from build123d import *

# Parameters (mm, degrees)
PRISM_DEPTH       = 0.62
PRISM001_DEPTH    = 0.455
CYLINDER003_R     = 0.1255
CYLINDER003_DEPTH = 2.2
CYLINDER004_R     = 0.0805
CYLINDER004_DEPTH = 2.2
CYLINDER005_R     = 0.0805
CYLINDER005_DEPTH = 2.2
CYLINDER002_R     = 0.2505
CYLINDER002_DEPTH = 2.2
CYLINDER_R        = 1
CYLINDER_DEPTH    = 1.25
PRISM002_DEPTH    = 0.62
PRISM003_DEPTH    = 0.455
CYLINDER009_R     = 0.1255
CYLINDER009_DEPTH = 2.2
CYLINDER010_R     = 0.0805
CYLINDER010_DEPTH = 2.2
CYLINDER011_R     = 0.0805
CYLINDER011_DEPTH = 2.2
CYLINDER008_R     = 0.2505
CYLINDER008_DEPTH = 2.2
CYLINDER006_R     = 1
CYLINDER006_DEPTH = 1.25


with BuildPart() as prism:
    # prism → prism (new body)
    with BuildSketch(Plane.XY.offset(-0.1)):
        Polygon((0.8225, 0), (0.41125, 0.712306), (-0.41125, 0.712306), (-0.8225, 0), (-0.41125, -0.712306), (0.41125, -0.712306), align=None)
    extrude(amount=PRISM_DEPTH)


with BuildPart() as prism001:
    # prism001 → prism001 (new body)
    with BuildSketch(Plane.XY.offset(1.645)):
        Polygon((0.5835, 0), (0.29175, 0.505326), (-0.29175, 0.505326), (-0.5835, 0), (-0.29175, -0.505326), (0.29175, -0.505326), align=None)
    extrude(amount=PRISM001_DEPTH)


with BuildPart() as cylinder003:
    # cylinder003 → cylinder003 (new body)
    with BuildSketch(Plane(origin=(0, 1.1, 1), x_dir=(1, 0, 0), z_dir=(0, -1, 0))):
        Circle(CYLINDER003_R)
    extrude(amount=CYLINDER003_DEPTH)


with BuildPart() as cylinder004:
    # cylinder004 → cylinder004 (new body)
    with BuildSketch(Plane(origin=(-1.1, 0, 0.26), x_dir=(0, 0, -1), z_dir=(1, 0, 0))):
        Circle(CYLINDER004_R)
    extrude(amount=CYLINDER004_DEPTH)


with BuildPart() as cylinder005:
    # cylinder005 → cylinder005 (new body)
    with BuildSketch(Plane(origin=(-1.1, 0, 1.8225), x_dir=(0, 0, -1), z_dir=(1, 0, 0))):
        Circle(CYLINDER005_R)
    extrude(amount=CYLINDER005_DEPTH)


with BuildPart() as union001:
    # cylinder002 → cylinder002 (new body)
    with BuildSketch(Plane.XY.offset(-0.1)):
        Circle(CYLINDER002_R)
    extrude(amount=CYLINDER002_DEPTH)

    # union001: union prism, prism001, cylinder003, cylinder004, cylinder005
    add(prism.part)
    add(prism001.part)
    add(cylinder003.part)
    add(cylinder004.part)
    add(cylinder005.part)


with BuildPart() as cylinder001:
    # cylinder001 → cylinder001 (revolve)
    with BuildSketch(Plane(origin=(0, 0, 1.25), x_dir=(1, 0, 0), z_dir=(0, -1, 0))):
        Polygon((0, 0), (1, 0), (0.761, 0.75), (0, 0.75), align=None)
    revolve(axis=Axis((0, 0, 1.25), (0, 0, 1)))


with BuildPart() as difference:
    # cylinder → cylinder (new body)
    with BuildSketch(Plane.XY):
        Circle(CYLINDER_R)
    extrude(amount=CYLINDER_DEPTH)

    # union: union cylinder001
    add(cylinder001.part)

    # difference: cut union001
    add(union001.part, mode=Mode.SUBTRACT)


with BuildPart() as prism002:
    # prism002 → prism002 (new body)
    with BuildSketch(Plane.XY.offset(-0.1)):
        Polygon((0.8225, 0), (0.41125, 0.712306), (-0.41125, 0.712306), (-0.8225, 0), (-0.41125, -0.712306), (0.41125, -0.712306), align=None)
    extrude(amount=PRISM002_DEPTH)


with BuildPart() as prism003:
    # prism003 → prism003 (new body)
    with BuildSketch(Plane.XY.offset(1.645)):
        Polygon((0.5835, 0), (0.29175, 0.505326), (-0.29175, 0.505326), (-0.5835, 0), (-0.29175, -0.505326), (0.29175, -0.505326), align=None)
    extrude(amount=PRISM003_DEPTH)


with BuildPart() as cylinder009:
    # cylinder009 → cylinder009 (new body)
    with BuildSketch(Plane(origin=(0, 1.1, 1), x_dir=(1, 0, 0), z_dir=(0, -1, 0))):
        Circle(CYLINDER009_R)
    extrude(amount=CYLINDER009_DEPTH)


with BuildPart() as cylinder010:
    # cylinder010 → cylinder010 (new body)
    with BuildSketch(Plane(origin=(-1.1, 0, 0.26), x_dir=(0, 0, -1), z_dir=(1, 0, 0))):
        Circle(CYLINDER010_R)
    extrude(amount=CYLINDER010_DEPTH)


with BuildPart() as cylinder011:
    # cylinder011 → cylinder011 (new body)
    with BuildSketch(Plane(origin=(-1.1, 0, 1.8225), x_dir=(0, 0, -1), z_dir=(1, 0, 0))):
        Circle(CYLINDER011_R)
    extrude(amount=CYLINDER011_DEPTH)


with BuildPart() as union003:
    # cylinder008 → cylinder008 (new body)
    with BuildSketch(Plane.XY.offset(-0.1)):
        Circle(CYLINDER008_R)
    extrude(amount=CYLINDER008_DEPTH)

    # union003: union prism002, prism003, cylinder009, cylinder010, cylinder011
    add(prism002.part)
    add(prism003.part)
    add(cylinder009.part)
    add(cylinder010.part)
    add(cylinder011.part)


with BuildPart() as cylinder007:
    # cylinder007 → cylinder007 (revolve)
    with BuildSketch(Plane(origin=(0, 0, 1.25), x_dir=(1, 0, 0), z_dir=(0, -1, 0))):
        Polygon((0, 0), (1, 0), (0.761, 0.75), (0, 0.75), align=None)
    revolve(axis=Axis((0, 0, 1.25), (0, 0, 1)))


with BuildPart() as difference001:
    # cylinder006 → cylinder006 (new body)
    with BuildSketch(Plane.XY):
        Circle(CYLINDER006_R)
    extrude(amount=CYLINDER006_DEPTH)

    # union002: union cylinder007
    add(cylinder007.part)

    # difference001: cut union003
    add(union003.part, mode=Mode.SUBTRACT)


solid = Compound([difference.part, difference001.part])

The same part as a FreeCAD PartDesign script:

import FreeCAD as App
import Part
import Sketcher

V = App.Vector
Q = App.Units.Quantity


def add_polygon(sketch, points):
    """Adds a closed chain of lines whose ends are joined by coincident constraints."""
    first, n = sketch.GeometryCount, len(points)
    for a, b in zip(points, points[1:] + points[:1]):
        sketch.addGeometry(Part.LineSegment(App.Vector(*a, 0), App.Vector(*b, 0)), False)
    for i in range(n):
        sketch.addConstraint(Sketcher.Constraint("Coincident", first + i, 2, first + (i + 1) % n, 1))

doc = App.newDocument("Part")
params = doc.addObject("Spreadsheet::Sheet", "Params")
for row, (alias, value) in enumerate([
    ("pad1_length", "0.62 mm"),
    ("pad2_length", "0.455 mm"),
    ("pad3_length", "2.2 mm"),
    ("pad4_length", "2.2 mm"),
    ("pad5_length", "2.2 mm"),
    ("pad6_length", "2.2 mm"),
    ("sketch7_width", "1 mm"),
    ("sketch7_height", "0.75 mm"),
    ("revolution_angle", "360 deg"),
    ("sketch8_diameter", "2 mm"),
    ("pad7_length", "1.25 mm"),
    ("pad8_length", "0.62 mm"),
    ("pad9_length", "0.455 mm"),
    ("pad10_length", "2.2 mm"),
    ("pad11_length", "2.2 mm"),
    ("pad12_length", "2.2 mm"),
    ("pad13_length", "2.2 mm"),
    ("sketch15_width", "1 mm"),
    ("sketch15_height", "0.75 mm"),
    ("revolution2_angle", "360 deg"),
    ("sketch16_diameter", "2 mm"),
    ("pad14_length", "1.25 mm"),
], start=1):
    params.set(f"A{row}", alias)
    params.set(f"B{row}", "=" + value)
    params.setAlias(f"B{row}", alias)

body = doc.addObject("PartDesign::Body", "Body")

sketch1 = body.newObject("Sketcher::SketchObject", "Sketch")
sketch1.AttachmentSupport = (doc.getObject("XY_Plane"), [""])
sketch1.MapMode = "FlatFace"
sketch1.AttachmentOffset = App.Placement(V(0, 0, -0.1), App.Rotation())
add_polygon(sketch1, [(0.8, 0), (0.4, 0.7), (-0.4, 0.7), (-0.8, 0), (-0.4, -0.7), (0.4, -0.7)])
sketch1.addConstraint([
    Sketcher.Constraint("Horizontal", 1),
    Sketcher.Constraint("Horizontal", 4),
    Sketcher.Constraint("Symmetric", 0, 2, 3, 2, -1, 1),
    Sketcher.Constraint("Symmetric", 2, 2, 5, 2, -1, 1),
    Sketcher.Constraint("PointOnObject", 2, 2, -1),
    Sketcher.Constraint("Parallel", 2, 5),
    Sketcher.Constraint("Vertical", 1, 2, 3, 2),
    Sketcher.Constraint("Angle", 0, Q("119.999996 deg")),
    Sketcher.Constraint("DistanceX", 1, 2, 1, 1, 0.8225),
    Sketcher.Constraint("DistanceX", 2, 2, 5, 2, 1.645),
])
pad1 = body.newObject("PartDesign::Pad", "Pad")
pad1.Profile = sketch1
pad1.setExpression("Length", "Params.pad1_length")
body2 = doc.addObject("PartDesign::Body", "Body001")

sketch2 = body2.newObject("Sketcher::SketchObject", "Sketch001")
sketch2.AttachmentSupport = (doc.getObject("XY_Plane001"), [""])
sketch2.MapMode = "FlatFace"
sketch2.AttachmentOffset = App.Placement(V(0, 0, 1.645), App.Rotation())
add_polygon(sketch2, [(0.6, 0), (0.3, 0.5), (-0.3, 0.5), (-0.6, 0), (-0.3, -0.5), (0.3, -0.5)])
sketch2.addConstraint([
    Sketcher.Constraint("Horizontal", 1),
    Sketcher.Constraint("Horizontal", 4),
    Sketcher.Constraint("Symmetric", 0, 2, 3, 2, -1, 1),
    Sketcher.Constraint("Symmetric", 2, 2, 5, 2, -1, 1),
    Sketcher.Constraint("PointOnObject", 2, 2, -1),
    Sketcher.Constraint("Parallel", 2, 5),
    Sketcher.Constraint("Vertical", 1, 2, 3, 2),
    Sketcher.Constraint("Angle", 0, Q("119.999991 deg")),
    Sketcher.Constraint("DistanceX", 1, 2, 1, 1, 0.5835),
    Sketcher.Constraint("DistanceX", 2, 2, 5, 2, 1.167),
])
pad2 = body2.newObject("PartDesign::Pad", "Pad001")
pad2.Profile = sketch2
pad2.setExpression("Length", "Params.pad2_length")
body3 = doc.addObject("PartDesign::Body", "Body002")

sketch3 = body3.newObject("Sketcher::SketchObject", "Sketch002")
sketch3.AttachmentSupport = (doc.getObject("XZ_Plane002"), [""])
sketch3.MapMode = "FlatFace"
sketch3.AttachmentOffset = App.Placement(V(0, 0, -1.1), App.Rotation())
sketch3.addGeometry(Part.Circle(V(0, 1, 0), V(0, 0, 1), 0.13), False)
sketch3.addConstraint([
    Sketcher.Constraint("PointOnObject", 0, 3, -2),
    Sketcher.Constraint("Diameter", 0, 0.251),
    Sketcher.Constraint("DistanceY", -1, 1, 0, 3, 1.0),
])
pad3 = body3.newObject("PartDesign::Pad", "Pad002")
pad3.Profile = sketch3
pad3.setExpression("Length", "Params.pad3_length")
body4 = doc.addObject("PartDesign::Body", "Body003")

sketch4 = body4.newObject("Sketcher::SketchObject", "Sketch003")
sketch4.AttachmentSupport = (doc.getObject("YZ_Plane003"), [""])
sketch4.MapMode = "FlatFace"
sketch4.AttachmentOffset = App.Placement(V(0, 0, -1.1), App.Rotation())
sketch4.addGeometry(Part.Circle(V(0, 0.26, 0), V(0, 0, 1), 0.08), False)
sketch4.addConstraint([
    Sketcher.Constraint("PointOnObject", 0, 3, -2),
    Sketcher.Constraint("Diameter", 0, 0.161),
    Sketcher.Constraint("DistanceY", -1, 1, 0, 3, 0.26),
])
pad4 = body4.newObject("PartDesign::Pad", "Pad003")
pad4.Profile = sketch4
pad4.setExpression("Length", "Params.pad4_length")
body5 = doc.addObject("PartDesign::Body", "Body004")

sketch5 = body5.newObject("Sketcher::SketchObject", "Sketch004")
sketch5.AttachmentSupport = (doc.getObject("YZ_Plane004"), [""])
sketch5.MapMode = "FlatFace"
sketch5.AttachmentOffset = App.Placement(V(0, 0, -1.1), App.Rotation())
sketch5.addGeometry(Part.Circle(V(0, 1.82, 0), V(0, 0, 1), 0.08), False)
sketch5.addConstraint([
    Sketcher.Constraint("PointOnObject", 0, 3, -2),
    Sketcher.Constraint("Diameter", 0, 0.161),
    Sketcher.Constraint("DistanceY", -1, 1, 0, 3, 1.8225),
])
pad5 = body5.newObject("PartDesign::Pad", "Pad004")
pad5.Profile = sketch5
pad5.setExpression("Length", "Params.pad5_length")
body6 = doc.addObject("PartDesign::Body", "Body005")

sketch6 = body6.newObject("Sketcher::SketchObject", "Sketch005")
sketch6.AttachmentSupport = (doc.getObject("XY_Plane005"), [""])
sketch6.MapMode = "FlatFace"
sketch6.AttachmentOffset = App.Placement(V(0, 0, -0.1), App.Rotation())
sketch6.addGeometry(Part.Circle(V(0, 0, 0), V(0, 0, 1), 0.25), False)
sketch6.addConstraint([
    Sketcher.Constraint("Coincident", 0, 3, -1, 1),
    Sketcher.Constraint("Diameter", 0, 0.501),
])
pad6 = body6.newObject("PartDesign::Pad", "Pad005")
pad6.Profile = sketch6
pad6.setExpression("Length", "Params.pad6_length")
doc.recompute()

boolean = body6.newObject("PartDesign::Boolean", "Boolean")
boolean.Type = "Fuse"
boolean.addObjects([body])
doc.recompute()

boolean2 = body6.newObject("PartDesign::Boolean", "Boolean001")
boolean2.Type = "Fuse"
boolean2.addObjects([body2])
doc.recompute()

boolean3 = body6.newObject("PartDesign::Boolean", "Boolean002")
boolean3.Type = "Fuse"
boolean3.addObjects([body3])
doc.recompute()

boolean4 = body6.newObject("PartDesign::Boolean", "Boolean003")
boolean4.Type = "Fuse"
boolean4.addObjects([body4])
doc.recompute()

boolean5 = body6.newObject("PartDesign::Boolean", "Boolean004")
boolean5.Type = "Fuse"
boolean5.addObjects([body5])
body7 = doc.addObject("PartDesign::Body", "Body006")

sketch7 = body7.newObject("Sketcher::SketchObject", "Sketch006")
sketch7.AttachmentSupport = (doc.getObject("XZ_Plane006"), [""])
sketch7.MapMode = "FlatFace"
add_polygon(sketch7, [(0, 1.2), (1, 1.2), (0.8, 2), (0, 2)])
sketch7.addConstraint([
    Sketcher.Constraint("Horizontal", 0),
    Sketcher.Constraint("Horizontal", 2),
    Sketcher.Constraint("Vertical", 3),
    Sketcher.Constraint("PointOnObject", 2, 2, -2),
    Sketcher.Constraint("DistanceX", 0, 1, 0, 2, 1.0),
    Sketcher.Constraint("DistanceY", -1, 1, 1, 2, 2.0),
    Sketcher.Constraint("DistanceY", 3, 2, 3, 1, 0.75),
    Sketcher.Constraint("DistanceX", 2, 2, 2, 1, 0.761),
])
sketch7.setExpression("Constraints[8]", "Params.sketch7_width")
sketch7.setExpression("Constraints[10]", "Params.sketch7_height")
revolution = body7.newObject("PartDesign::Revolution", "Revolution")
revolution.Profile = sketch7
revolution.ReferenceAxis = (sketch7, ["V_Axis"])
revolution.setExpression("Angle", "Params.revolution_angle")
body8 = doc.addObject("PartDesign::Body", "Body007")

sketch8 = body8.newObject("Sketcher::SketchObject", "Sketch007")
sketch8.AttachmentSupport = (doc.getObject("XY_Plane007"), [""])
sketch8.MapMode = "FlatFace"
sketch8.addGeometry(Part.Circle(V(0, 0, 0), V(0, 0, 1), 1), False)
sketch8.addConstraint([
    Sketcher.Constraint("Coincident", 0, 3, -1, 1),
    Sketcher.Constraint("Diameter", 0, 2.0),
])
sketch8.setExpression("Constraints[1]", "Params.sketch8_diameter")
pad7 = body8.newObject("PartDesign::Pad", "Pad006")
pad7.Profile = sketch8
pad7.setExpression("Length", "Params.pad7_length")
doc.recompute()

boolean6 = body8.newObject("PartDesign::Boolean", "Boolean005")
boolean6.Type = "Fuse"
boolean6.addObjects([body7])
doc.recompute()

boolean7 = body8.newObject("PartDesign::Boolean", "Boolean006")
boolean7.Type = "Cut"
boolean7.addObjects([body6])
body9 = doc.addObject("PartDesign::Body", "Body008")

sketch9 = body9.newObject("Sketcher::SketchObject", "Sketch008")
sketch9.AttachmentSupport = (doc.getObject("XY_Plane008"), [""])
sketch9.MapMode = "FlatFace"
sketch9.AttachmentOffset = App.Placement(V(0, 0, -0.1), App.Rotation())
add_polygon(sketch9, [(0.8, 0), (0.4, 0.7), (-0.4, 0.7), (-0.8, 0), (-0.4, -0.7), (0.4, -0.7)])
sketch9.addConstraint([
    Sketcher.Constraint("Horizontal", 1),
    Sketcher.Constraint("Horizontal", 4),
    Sketcher.Constraint("Symmetric", 0, 2, 3, 2, -1, 1),
    Sketcher.Constraint("Symmetric", 2, 2, 5, 2, -1, 1),
    Sketcher.Constraint("PointOnObject", 2, 2, -1),
    Sketcher.Constraint("Parallel", 2, 5),
    Sketcher.Constraint("Vertical", 1, 2, 3, 2),
    Sketcher.Constraint("Angle", 0, Q("119.999996 deg")),
    Sketcher.Constraint("DistanceX", 1, 2, 1, 1, 0.8225),
    Sketcher.Constraint("DistanceX", 2, 2, 5, 2, 1.645),
])
pad8 = body9.newObject("PartDesign::Pad", "Pad007")
pad8.Profile = sketch9
pad8.setExpression("Length", "Params.pad8_length")
body10 = doc.addObject("PartDesign::Body", "Body009")

sketch10 = body10.newObject("Sketcher::SketchObject", "Sketch009")
sketch10.AttachmentSupport = (doc.getObject("XY_Plane009"), [""])
sketch10.MapMode = "FlatFace"
sketch10.AttachmentOffset = App.Placement(V(0, 0, 1.645), App.Rotation())
add_polygon(sketch10, [(0.6, 0), (0.3, 0.5), (-0.3, 0.5), (-0.6, 0), (-0.3, -0.5), (0.3, -0.5)])
sketch10.addConstraint([
    Sketcher.Constraint("Horizontal", 1),
    Sketcher.Constraint("Horizontal", 4),
    Sketcher.Constraint("Symmetric", 0, 2, 3, 2, -1, 1),
    Sketcher.Constraint("Symmetric", 2, 2, 5, 2, -1, 1),
    Sketcher.Constraint("PointOnObject", 2, 2, -1),
    Sketcher.Constraint("Parallel", 2, 5),
    Sketcher.Constraint("Vertical", 1, 2, 3, 2),
    Sketcher.Constraint("Angle", 0, Q("119.999991 deg")),
    Sketcher.Constraint("DistanceX", 1, 2, 1, 1, 0.5835),
    Sketcher.Constraint("DistanceX", 2, 2, 5, 2, 1.167),
])
pad9 = body10.newObject("PartDesign::Pad", "Pad008")
pad9.Profile = sketch10
pad9.setExpression("Length", "Params.pad9_length")
body11 = doc.addObject("PartDesign::Body", "Body010")

sketch11 = body11.newObject("Sketcher::SketchObject", "Sketch010")
sketch11.AttachmentSupport = (doc.getObject("XZ_Plane010"), [""])
sketch11.MapMode = "FlatFace"
sketch11.AttachmentOffset = App.Placement(V(0, 0, -1.1), App.Rotation())
sketch11.addGeometry(Part.Circle(V(0, 1, 0), V(0, 0, 1), 0.13), False)
sketch11.addConstraint([
    Sketcher.Constraint("PointOnObject", 0, 3, -2),
    Sketcher.Constraint("Diameter", 0, 0.251),
    Sketcher.Constraint("DistanceY", -1, 1, 0, 3, 1.0),
])
pad10 = body11.newObject("PartDesign::Pad", "Pad009")
pad10.Profile = sketch11
pad10.setExpression("Length", "Params.pad10_length")
body12 = doc.addObject("PartDesign::Body", "Body011")

sketch12 = body12.newObject("Sketcher::SketchObject", "Sketch011")
sketch12.AttachmentSupport = (doc.getObject("YZ_Plane011"), [""])
sketch12.MapMode = "FlatFace"
sketch12.AttachmentOffset = App.Placement(V(0, 0, -1.1), App.Rotation())
sketch12.addGeometry(Part.Circle(V(0, 0.26, 0), V(0, 0, 1), 0.08), False)
sketch12.addConstraint([
    Sketcher.Constraint("PointOnObject", 0, 3, -2),
    Sketcher.Constraint("Diameter", 0, 0.161),
    Sketcher.Constraint("DistanceY", -1, 1, 0, 3, 0.26),
])
pad11 = body12.newObject("PartDesign::Pad", "Pad010")
pad11.Profile = sketch12
pad11.setExpression("Length", "Params.pad11_length")
body13 = doc.addObject("PartDesign::Body", "Body012")

sketch13 = body13.newObject("Sketcher::SketchObject", "Sketch012")
sketch13.AttachmentSupport = (doc.getObject("YZ_Plane012"), [""])
sketch13.MapMode = "FlatFace"
sketch13.AttachmentOffset = App.Placement(V(0, 0, -1.1), App.Rotation())
sketch13.addGeometry(Part.Circle(V(0, 1.82, 0), V(0, 0, 1), 0.08), False)
sketch13.addConstraint([
    Sketcher.Constraint("PointOnObject", 0, 3, -2),
    Sketcher.Constraint("Diameter", 0, 0.161),
    Sketcher.Constraint("DistanceY", -1, 1, 0, 3, 1.8225),
])
pad12 = body13.newObject("PartDesign::Pad", "Pad011")
pad12.Profile = sketch13
pad12.setExpression("Length", "Params.pad12_length")
body14 = doc.addObject("PartDesign::Body", "Body013")

sketch14 = body14.newObject("Sketcher::SketchObject", "Sketch013")
sketch14.AttachmentSupport = (doc.getObject("XY_Plane013"), [""])
sketch14.MapMode = "FlatFace"
sketch14.AttachmentOffset = App.Placement(V(0, 0, -0.1), App.Rotation())
sketch14.addGeometry(Part.Circle(V(0, 0, 0), V(0, 0, 1), 0.25), False)
sketch14.addConstraint([
    Sketcher.Constraint("Coincident", 0, 3, -1, 1),
    Sketcher.Constraint("Diameter", 0, 0.501),
])
pad13 = body14.newObject("PartDesign::Pad", "Pad012")
pad13.Profile = sketch14
pad13.setExpression("Length", "Params.pad13_length")
doc.recompute()

boolean8 = body14.newObject("PartDesign::Boolean", "Boolean007")
boolean8.Type = "Fuse"
boolean8.addObjects([body9])
doc.recompute()

boolean9 = body14.newObject("PartDesign::Boolean", "Boolean008")
boolean9.Type = "Fuse"
boolean9.addObjects([body10])
doc.recompute()

boolean10 = body14.newObject("PartDesign::Boolean", "Boolean009")
boolean10.Type = "Fuse"
boolean10.addObjects([body11])
doc.recompute()

boolean11 = body14.newObject("PartDesign::Boolean", "Boolean010")
boolean11.Type = "Fuse"
boolean11.addObjects([body12])
doc.recompute()

boolean12 = body14.newObject("PartDesign::Boolean", "Boolean011")
boolean12.Type = "Fuse"
boolean12.addObjects([body13])
body15 = doc.addObject("PartDesign::Body", "Body014")

sketch15 = body15.newObject("Sketcher::SketchObject", "Sketch014")
sketch15.AttachmentSupport = (doc.getObject("XZ_Plane014"), [""])
sketch15.MapMode = "FlatFace"
add_polygon(sketch15, [(0, 1.2), (1, 1.2), (0.8, 2), (0, 2)])
sketch15.addConstraint([
    Sketcher.Constraint("Horizontal", 0),
    Sketcher.Constraint("Horizontal", 2),
    Sketcher.Constraint("Vertical", 3),
    Sketcher.Constraint("PointOnObject", 2, 2, -2),
    Sketcher.Constraint("DistanceX", 0, 1, 0, 2, 1.0),
    Sketcher.Constraint("DistanceY", -1, 1, 1, 2, 2.0),
    Sketcher.Constraint("DistanceY", 3, 2, 3, 1, 0.75),
    Sketcher.Constraint("DistanceX", 2, 2, 2, 1, 0.761),
])
sketch15.setExpression("Constraints[8]", "Params.sketch15_width")
sketch15.setExpression("Constraints[10]", "Params.sketch15_height")
revolution2 = body15.newObject("PartDesign::Revolution", "Revolution001")
revolution2.Profile = sketch15
revolution2.ReferenceAxis = (sketch15, ["V_Axis"])
revolution2.setExpression("Angle", "Params.revolution2_angle")
body16 = doc.addObject("PartDesign::Body", "Body015")

sketch16 = body16.newObject("Sketcher::SketchObject", "Sketch015")
sketch16.AttachmentSupport = (doc.getObject("XY_Plane015"), [""])
sketch16.MapMode = "FlatFace"
sketch16.addGeometry(Part.Circle(V(0, 0, 0), V(0, 0, 1), 1), False)
sketch16.addConstraint([
    Sketcher.Constraint("Coincident", 0, 3, -1, 1),
    Sketcher.Constraint("Diameter", 0, 2.0),
])
sketch16.setExpression("Constraints[1]", "Params.sketch16_diameter")
pad14 = body16.newObject("PartDesign::Pad", "Pad013")
pad14.Profile = sketch16
pad14.setExpression("Length", "Params.pad14_length")
doc.recompute()

boolean13 = body16.newObject("PartDesign::Boolean", "Boolean012")
boolean13.Type = "Fuse"
boolean13.addObjects([body15])
doc.recompute()

boolean14 = body16.newObject("PartDesign::Boolean", "Boolean013")
boolean14.Type = "Cut"
boolean14.addObjects([body14])

doc.recompute()
